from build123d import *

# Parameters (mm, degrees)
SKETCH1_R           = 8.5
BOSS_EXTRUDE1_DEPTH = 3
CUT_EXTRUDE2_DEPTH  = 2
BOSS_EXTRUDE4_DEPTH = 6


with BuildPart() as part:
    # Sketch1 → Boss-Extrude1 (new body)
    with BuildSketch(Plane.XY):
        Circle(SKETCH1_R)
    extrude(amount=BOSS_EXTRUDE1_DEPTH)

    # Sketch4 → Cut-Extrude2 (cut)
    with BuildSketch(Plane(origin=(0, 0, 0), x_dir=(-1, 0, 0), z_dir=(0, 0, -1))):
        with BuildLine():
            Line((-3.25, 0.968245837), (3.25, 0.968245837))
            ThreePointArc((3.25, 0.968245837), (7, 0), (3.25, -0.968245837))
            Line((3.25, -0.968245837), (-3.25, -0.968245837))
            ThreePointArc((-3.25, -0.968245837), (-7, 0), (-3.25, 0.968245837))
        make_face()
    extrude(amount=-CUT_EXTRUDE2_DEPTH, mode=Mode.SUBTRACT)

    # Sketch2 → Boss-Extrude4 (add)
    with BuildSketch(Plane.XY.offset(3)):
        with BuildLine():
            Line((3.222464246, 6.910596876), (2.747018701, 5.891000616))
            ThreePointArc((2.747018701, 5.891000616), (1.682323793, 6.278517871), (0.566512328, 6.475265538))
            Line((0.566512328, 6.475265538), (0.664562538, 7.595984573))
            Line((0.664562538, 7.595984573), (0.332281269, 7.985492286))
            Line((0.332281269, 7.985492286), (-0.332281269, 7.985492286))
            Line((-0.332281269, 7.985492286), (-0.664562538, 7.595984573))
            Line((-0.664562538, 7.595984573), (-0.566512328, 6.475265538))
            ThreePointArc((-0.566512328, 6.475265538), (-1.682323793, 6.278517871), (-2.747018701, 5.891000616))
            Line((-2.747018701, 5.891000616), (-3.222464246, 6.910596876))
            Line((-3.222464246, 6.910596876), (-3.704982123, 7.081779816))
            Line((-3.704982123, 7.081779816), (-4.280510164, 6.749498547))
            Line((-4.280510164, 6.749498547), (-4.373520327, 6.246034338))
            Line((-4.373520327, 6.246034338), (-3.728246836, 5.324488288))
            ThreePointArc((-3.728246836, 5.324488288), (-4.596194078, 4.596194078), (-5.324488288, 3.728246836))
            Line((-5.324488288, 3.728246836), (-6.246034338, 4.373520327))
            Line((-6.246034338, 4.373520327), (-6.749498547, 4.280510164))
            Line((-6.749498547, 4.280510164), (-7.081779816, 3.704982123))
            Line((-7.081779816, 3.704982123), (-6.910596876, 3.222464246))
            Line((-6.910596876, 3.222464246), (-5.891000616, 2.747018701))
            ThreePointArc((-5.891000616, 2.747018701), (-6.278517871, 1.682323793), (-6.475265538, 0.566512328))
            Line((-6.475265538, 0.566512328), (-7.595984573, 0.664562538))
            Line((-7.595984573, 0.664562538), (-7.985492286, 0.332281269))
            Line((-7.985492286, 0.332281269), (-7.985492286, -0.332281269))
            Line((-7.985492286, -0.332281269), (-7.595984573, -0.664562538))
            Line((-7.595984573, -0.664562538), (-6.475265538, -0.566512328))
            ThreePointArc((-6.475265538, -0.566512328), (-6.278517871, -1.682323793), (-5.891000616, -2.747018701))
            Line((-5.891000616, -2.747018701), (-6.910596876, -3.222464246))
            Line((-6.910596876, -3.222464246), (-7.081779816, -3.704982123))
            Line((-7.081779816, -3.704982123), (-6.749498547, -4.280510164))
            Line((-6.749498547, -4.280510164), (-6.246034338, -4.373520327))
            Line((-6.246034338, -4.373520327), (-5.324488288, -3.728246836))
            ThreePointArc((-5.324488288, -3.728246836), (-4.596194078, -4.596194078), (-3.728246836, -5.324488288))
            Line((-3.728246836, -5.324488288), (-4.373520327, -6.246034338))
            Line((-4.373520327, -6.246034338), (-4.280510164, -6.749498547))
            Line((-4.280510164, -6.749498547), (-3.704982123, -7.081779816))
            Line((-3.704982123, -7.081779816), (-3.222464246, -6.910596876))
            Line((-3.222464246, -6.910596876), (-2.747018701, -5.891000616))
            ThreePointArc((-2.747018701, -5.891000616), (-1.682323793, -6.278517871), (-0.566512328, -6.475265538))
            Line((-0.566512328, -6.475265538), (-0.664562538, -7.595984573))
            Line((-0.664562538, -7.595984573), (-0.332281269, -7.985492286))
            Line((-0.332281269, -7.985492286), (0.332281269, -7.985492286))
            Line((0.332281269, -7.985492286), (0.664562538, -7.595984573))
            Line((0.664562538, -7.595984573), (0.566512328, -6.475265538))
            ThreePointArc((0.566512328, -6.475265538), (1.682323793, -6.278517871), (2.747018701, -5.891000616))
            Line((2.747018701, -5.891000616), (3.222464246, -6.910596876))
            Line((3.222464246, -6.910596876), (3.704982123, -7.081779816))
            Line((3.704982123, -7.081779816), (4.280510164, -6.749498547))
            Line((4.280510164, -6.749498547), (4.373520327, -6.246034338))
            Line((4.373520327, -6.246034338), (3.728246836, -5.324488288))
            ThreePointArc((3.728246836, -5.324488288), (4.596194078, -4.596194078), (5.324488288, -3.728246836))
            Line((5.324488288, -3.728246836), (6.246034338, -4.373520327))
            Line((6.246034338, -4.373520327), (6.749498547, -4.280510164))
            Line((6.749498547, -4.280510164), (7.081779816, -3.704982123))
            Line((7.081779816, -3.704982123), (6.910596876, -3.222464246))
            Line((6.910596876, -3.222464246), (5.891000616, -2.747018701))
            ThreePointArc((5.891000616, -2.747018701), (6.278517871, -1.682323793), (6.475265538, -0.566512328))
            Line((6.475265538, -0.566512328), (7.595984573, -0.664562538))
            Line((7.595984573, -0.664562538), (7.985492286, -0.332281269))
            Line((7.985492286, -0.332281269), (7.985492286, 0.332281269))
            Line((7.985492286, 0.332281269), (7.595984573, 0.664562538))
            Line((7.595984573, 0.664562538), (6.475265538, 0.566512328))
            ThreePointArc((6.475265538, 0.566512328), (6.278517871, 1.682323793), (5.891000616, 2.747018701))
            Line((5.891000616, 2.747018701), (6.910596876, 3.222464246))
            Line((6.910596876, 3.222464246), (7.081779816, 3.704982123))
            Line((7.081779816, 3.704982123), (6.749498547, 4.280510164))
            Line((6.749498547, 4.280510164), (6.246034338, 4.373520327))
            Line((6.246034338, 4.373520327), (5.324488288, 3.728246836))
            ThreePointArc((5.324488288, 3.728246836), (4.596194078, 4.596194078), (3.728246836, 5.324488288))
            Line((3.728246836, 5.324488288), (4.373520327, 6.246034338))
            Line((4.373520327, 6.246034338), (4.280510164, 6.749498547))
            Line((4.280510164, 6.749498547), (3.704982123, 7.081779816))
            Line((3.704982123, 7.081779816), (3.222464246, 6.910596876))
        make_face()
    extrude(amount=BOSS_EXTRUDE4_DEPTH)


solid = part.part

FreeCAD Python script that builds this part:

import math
import FreeCAD as App
import Part
import Sketcher

V = App.Vector
Q = App.Units.Quantity

doc = App.newDocument("Part")
body = doc.addObject("PartDesign::Body", "Body")

sketch1 = body.newObject("Sketcher::SketchObject", "Sketch")
sketch1.AttachmentSupport = (doc.getObject("XY_Plane"), [""])
sketch1.MapMode = "FlatFace"
sketch1.addGeometry(Part.Circle(V(0, 0, 0), V(0, 0, 1), 8), False)
sketch1.addConstraint([
    Sketcher.Constraint("Coincident", 0, 3, -1, 1),
    Sketcher.Constraint("Diameter", 0, 17.0),
])
pad1 = body.newObject("PartDesign::Pad", "Pad")
pad1.Profile = sketch1
pad1.Length = 3

sketch2 = body.newObject("Sketcher::SketchObject", "Sketch001")
sketch2.AttachmentSupport = (doc.getObject("XY_Plane"), [""])
sketch2.MapMode = "FlatFace"
sketch2.addGeometry([
    Part.LineSegment(V(-3.2, 1, 0), V(3.2, 1, 0)),
    Part.ArcOfCircle(Part.Circle(V(5, 0, 0), V(0, 0, 1), 2), math.radians(-151), math.radians(151)),
    Part.LineSegment(V(3.2, -1, 0), V(-3.2, -1, 0)),
    Part.ArcOfCircle(Part.Circle(V(-5, 0, 0), V(0, 0, 1), 2), math.radians(29), math.radians(331)),
], False)
sketch2.addConstraint([
    Sketcher.Constraint("Coincident", 0, 2, 1, 2),
    Sketcher.Constraint("Coincident", 1, 1, 2, 1),
    Sketcher.Constraint("Coincident", 2, 2, 3, 2),
    Sketcher.Constraint("Coincident", 3, 1, 0, 1),
    Sketcher.Constraint("Horizontal", 0),
    Sketcher.Constraint("Horizontal", 2),
    Sketcher.Constraint("Equal", 1, 3),
    Sketcher.Constraint("Symmetric", 1, 3, 3, 3, -1, 1),
    Sketcher.Constraint("Symmetric", 0, 2, 1, 1, -1),
    Sketcher.Constraint("Radius", 1, 2.0),
    Sketcher.Constraint("DistanceX", 0, 1, 0, 2, 6.5),
    Sketcher.Constraint("DistanceX", -1, 1, 1, 3, 5.0),
])
pocket1 = body.newObject("PartDesign::Pocket", "Pocket")
pocket1.Profile = sketch2
pocket1.Length = 2
pocket1.Reversed = True

sketch3 = body.newObject("Sketcher::SketchObject", "Sketch002")
sketch3.AttachmentSupport = (doc.getObject("XY_Plane"), [""])
sketch3.MapMode = "FlatFace"
sketch3.AttachmentOffset = App.Placement(V(0, 0, 3), App.Rotation())
sketch3.addGeometry([
    Part.LineSegment(V(3.2, 6.9, 0), V(2.7, 5.9, 0)),
    Part.ArcOfCircle(Part.Circle(V(0, 0, 0), V(0, 0, 1), 6.5), math.radians(65), math.radians(85)),
    Part.LineSegment(V(0.6, 6.5, 0), V(0.7, 7.6, 0)),
    Part.LineSegment(V(0.7, 7.6, 0), V(0.3, 8, 0)),
    Part.LineSegment(V(0.3, 8, 0), V(-0.3, 8, 0)),
    Part.LineSegment(V(-0.3, 8, 0), V(-0.7, 7.6, 0)),
    Part.LineSegment(V(-0.7, 7.6, 0), V(-0.6, 6.5, 0)),
    Part.ArcOfCircle(Part.Circle(V(0, 0, 0), V(0, 0, 1), 6.5), math.radians(95), math.radians(115)),
    Part.LineSegment(V(-2.7, 5.9, 0), V(-3.2, 6.9, 0)),
    Part.LineSegment(V(-3.2, 6.9, 0), V(-3.7, 7.1, 0)),
    Part.LineSegment(V(-3.7, 7.1, 0), V(-4.3, 6.7, 0)),
    Part.LineSegment(V(-4.3, 6.7, 0), V(-4.4, 6.2, 0)),
    Part.LineSegment(V(-4.4, 6.2, 0), V(-3.7, 5.3, 0)),
    Part.ArcOfCircle(Part.Circle(V(0, 0, 0), V(0, 0, 1), 6.5), math.radians(125), math.radians(145)),
    Part.LineSegment(V(-5.3, 3.7, 0), V(-6.2, 4.4, 0)),
    Part.LineSegment(V(-6.2, 4.4, 0), V(-6.7, 4.3, 0)),
    Part.LineSegment(V(-6.7, 4.3, 0), V(-7.1, 3.7, 0)),
    Part.LineSegment(V(-7.1, 3.7, 0), V(-6.9, 3.2, 0)),
    Part.LineSegment(V(-6.9, 3.2, 0), V(-5.9, 2.7, 0)),
    Part.ArcOfCircle(Part.Circle(V(0, 0, 0), V(0, 0, 1), 6.5), math.radians(155), math.radians(175)),
    Part.LineSegment(V(-6.5, 0.6, 0), V(-7.6, 0.7, 0)),
    Part.LineSegment(V(-7.6, 0.7, 0), V(-8, 0.3, 0)),
    Part.LineSegment(V(-8, 0.3, 0), V(-8, -0.3, 0)),
    Part.LineSegment(V(-8, -0.3, 0), V(-7.6, -0.7, 0)),
    Part.LineSegment(V(-7.6, -0.7, 0), V(-6.5, -0.6, 0)),
    Part.ArcOfCircle(Part.Circle(V(0, 0, 0), V(0, 0, 1), 6.5), math.radians(-175), math.radians(-155)),
    Part.LineSegment(V(-5.9, -2.7, 0), V(-6.9, -3.2, 0)),
    Part.LineSegment(V(-6.9, -3.2, 0), V(-7.1, -3.7, 0)),
    Part.LineSegment(V(-7.1, -3.7, 0), V(-6.7, -4.3, 0)),
    Part.LineSegment(V(-6.7, -4.3, 0), V(-6.2, -4.4, 0)),
    Part.LineSegment(V(-6.2, -4.4, 0), V(-5.3, -3.7, 0)),
    Part.ArcOfCircle(Part.Circle(V(0, 0, 0), V(0, 0, 1), 6.5), math.radians(-145), math.radians(-125)),
    Part.LineSegment(V(-3.7, -5.3, 0), V(-4.4, -6.2, 0)),
    Part.LineSegment(V(-4.4, -6.2, 0), V(-4.3, -6.7, 0)),
    Part.LineSegment(V(-4.3, -6.7, 0), V(-3.7, -7.1, 0)),
    Part.LineSegment(V(-3.7, -7.1, 0), V(-3.2, -6.9, 0)),
    Part.LineSegment(V(-3.2, -6.9, 0), V(-2.7, -5.9, 0)),
    Part.ArcOfCircle(Part.Circle(V(0, 0, 0), V(0, 0, 1), 6.5), math.radians(-115), math.radians(-95)),
    Part.LineSegment(V(-0.6, -6.5, 0), V(-0.7, -7.6, 0)),
    Part.LineSegment(V(-0.7, -7.6, 0), V(-0.3, -8, 0)),
    Part.LineSegment(V(-0.3, -8, 0), V(0.3, -8, 0)),
    Part.LineSegment(V(0.3, -8, 0), V(0.7, -7.6, 0)),
    Part.LineSegment(V(0.7, -7.6, 0), V(0.6, -6.5, 0)),
    Part.ArcOfCircle(Part.Circle(V(0, 0, 0), V(0, 0, 1), 6.5), math.radians(-85), math.radians(-65)),
    Part.LineSegment(V(2.7, -5.9, 0), V(3.2, -6.9, 0)),
    Part.LineSegment(V(3.2, -6.9, 0), V(3.7, -7.1, 0)),
    Part.LineSegment(V(3.7, -7.1, 0), V(4.3, -6.7, 0)),
    Part.LineSegment(V(4.3, -6.7, 0), V(4.4, -6.2, 0)),
    Part.LineSegment(V(4.4, -6.2, 0), V(3.7, -5.3, 0)),
    Part.ArcOfCircle(Part.Circle(V(0, 0, 0), V(0, 0, 1), 6.5), math.radians(-55), math.radians(-35)),
    Part.LineSegment(V(5.3, -3.7, 0), V(6.2, -4.4, 0)),
    Part.LineSegment(V(6.2, -4.4, 0), V(6.7, -4.3, 0)),
    Part.LineSegment(V(6.7, -4.3, 0), V(7.1, -3.7, 0)),
    Part.LineSegment(V(7.1, -3.7, 0), V(6.9, -3.2, 0)),
    Part.LineSegment(V(6.9, -3.2, 0), V(5.9, -2.7, 0)),
    Part.ArcOfCircle(Part.Circle(V(0, 0, 0), V(0, 0, 1), 6.5), math.radians(-25), math.radians(-5)),
    Part.LineSegment(V(6.5, -0.6, 0), V(7.6, -0.7, 0)),
    Part.LineSegment(V(7.6, -0.7, 0), V(8, -0.3, 0)),
    Part.LineSegment(V(8, -0.3, 0), V(8, 0.3, 0)),
    Part.LineSegment(V(8, 0.3, 0), V(7.6, 0.7, 0)),
    Part.LineSegment(V(7.6, 0.7, 0), V(6.5, 0.6, 0)),
    Part.ArcOfCircle(Part.Circle(V(0, 0, 0), V(0, 0, 1), 6.5), math.radians(5), math.radians(25)),
    Part.LineSegment(V(5.9, 2.7, 0), V(6.9, 3.2, 0)),
    Part.LineSegment(V(6.9, 3.2, 0), V(7.1, 3.7, 0)),
    Part.LineSegment(V(7.1, 3.7, 0), V(6.7, 4.3, 0)),
    Part.LineSegment(V(6.7, 4.3, 0), V(6.2, 4.4, 0)),
    Part.LineSegment(V(6.2, 4.4, 0), V(5.3, 3.7, 0)),
    Part.ArcOfCircle(Part.Circle(V(0, 0, 0), V(0, 0, 1), 6.5), math.radians(35), math.radians(55)),
    Part.LineSegment(V(3.7, 5.3, 0), V(4.4, 6.2, 0)),
    Part.LineSegment(V(4.4, 6.2, 0), V(4.3, 6.7, 0)),
    Part.LineSegment(V(4.3, 6.7, 0), V(3.7, 7.1, 0)),
    Part.LineSegment(V(3.7, 7.1, 0), V(3.2, 6.9, 0)),
], False)
sketch3.addConstraint([
    Sketcher.Constraint("Coincident", 0, 2, 1, 1),
    Sketcher.Constraint("Coincident", 1, 2, 2, 1),
    Sketcher.Constraint("Coincident", 2, 2, 3, 1),
    Sketcher.Constraint("Coincident", 3, 2, 4, 1),
    Sketcher.Constraint("Coincident", 4, 2, 5, 1),
    Sketcher.Constraint("Coincident", 5, 2, 6, 1),
    Sketcher.Constraint("Coincident", 6, 2, 7, 1),
    Sketcher.Constraint("Coincident", 7, 2, 8, 1),
    Sketcher.Constraint("Coincident", 8, 2, 9, 1),
    Sketcher.Constraint("Coincident", 9, 2, 10, 1),
    Sketcher.Constraint("Coincident", 10, 2, 11, 1),
    Sketcher.Constraint("Coincident", 11, 2, 12, 1),
    Sketcher.Constraint("Coincident", 12, 2, 13, 1),
    Sketcher.Constraint("Coincident", 13, 2, 14, 1),
    Sketcher.Constraint("Coincident", 14, 2, 15, 1),
    Sketcher.Constraint("Coincident", 15, 2, 16, 1),
    Sketcher.Constraint("Coincident", 16, 2, 17, 1),
    Sketcher.Constraint("Coincident", 17, 2, 18, 1),
    Sketcher.Constraint("Coincident", 18, 2, 19, 1),
    Sketcher.Constraint("Coincident", 19, 2, 20, 1),
    Sketcher.Constraint("Coincident", 20, 2, 21, 1),
    Sketcher.Constraint("Coincident", 21, 2, 22, 1),
    Sketcher.Constraint("Coincident", 22, 2, 23, 1),
    Sketcher.Constraint("Coincident", 23, 2, 24, 1),
    Sketcher.Constraint("Coincident", 24, 2, 25, 1),
    Sketcher.Constraint("Coincident", 25, 2, 26, 1),
    Sketcher.Constraint("Coincident", 26, 2, 27, 1),
    Sketcher.Constraint("Coincident", 27, 2, 28, 1),
    Sketcher.Constraint("Coincident", 28, 2, 29, 1),
    Sketcher.Constraint("Coincident", 29, 2, 30, 1),
    Sketcher.Constraint("Coincident", 30, 2, 31, 1),
    Sketcher.Constraint("Coincident", 31, 2, 32, 1),
    Sketcher.Constraint("Coincident", 32, 2, 33, 1),
    Sketcher.Constraint("Coincident", 33, 2, 34, 1),
    Sketcher.Constraint("Coincident", 34, 2, 35, 1),
    Sketcher.Constraint("Coincident", 35, 2, 36, 1),
    Sketcher.Constraint("Coincident", 36, 2, 37, 1),
    Sketcher.Constraint("Coincident", 37, 2, 38, 1),
    Sketcher.Constraint("Coincident", 38, 2, 39, 1),
    Sketcher.Constraint("Coincident", 39, 2, 40, 1),
    Sketcher.Constraint("Coincident", 40, 2, 41, 1),
    Sketcher.Constraint("Coincident", 41, 2, 42, 1),
    Sketcher.Constraint("Coincident", 42, 2, 43, 1),
    Sketcher.Constraint("Coincident", 43, 2, 44, 1),
    Sketcher.Constraint("Coincident", 44, 2, 45, 1),
    Sketcher.Constraint("Coincident", 45, 2, 46, 1),
    Sketcher.Constraint("Coincident", 46, 2, 47, 1),
    Sketcher.Constraint("Coincident", 47, 2, 48, 1),
    Sketcher.Constraint("Coincident", 48, 2, 49, 1),
    Sketcher.Constraint("Coincident", 49, 2, 50, 1),
    Sketcher.Constraint("Coincident", 50, 2, 51, 1),
    Sketcher.Constraint("Coincident", 51, 2, 52, 1),
    Sketcher.Constraint("Coincident", 52, 2, 53, 1),
    Sketcher.Constraint("Coincident", 53, 2, 54, 1),
    Sketcher.Constraint("Coincident", 54, 2, 55, 1),
    Sketcher.Constraint("Coincident", 55, 2, 56, 1),
    Sketcher.Constraint("Coincident", 56, 2, 57, 1),
    Sketcher.Constraint("Coincident", 57, 2, 58, 1),
    Sketcher.Constraint("Coincident", 58, 2, 59, 1),
    Sketcher.Constraint("Coincident", 59, 2, 60, 1),
    Sketcher.Constraint("Coincident", 60, 2, 61, 1),
    Sketcher.Constraint("Coincident", 61, 2, 62, 1),
    Sketcher.Constraint("Coincident", 62, 2, 63, 1),
    Sketcher.Constraint("Coincident", 63, 2, 64, 1),
    Sketcher.Constraint("Coincident", 64, 2, 65, 1),
    Sketcher.Constraint("Coincident", 65, 2, 66, 1),
    Sketcher.Constraint("Coincident", 66, 2, 67, 1),
    Sketcher.Constraint("Coincident", 67, 2, 68, 1),
    Sketcher.Constraint("Coincident", 68, 2, 69, 1),
    Sketcher.Constraint("Coincident", 69, 2, 70, 1),
    Sketcher.Constraint("Coincident", 70, 2, 71, 1),
    Sketcher.Constraint("Coincident", 71, 2, 0, 1),
    Sketcher.Constraint("Horizontal", 4),
    Sketcher.Constraint("Vertical", 22),
    Sketcher.Constraint("Horizontal", 40),
    Sketcher.Constraint("Vertical", 58),
    Sketcher.Constraint("Coincident", 1, 3, -1, 1),
    Sketcher.Constraint("Coincident", 7, 3, -1, 1),
    Sketcher.Constraint("Coincident", 13, 3, -1, 1),
    Sketcher.Constraint("Coincident", 19, 3, -1, 1),
    Sketcher.Constraint("Coincident", 25, 3, -1, 1),
    Sketcher.Constraint("Coincident", 31, 3, -1, 1),
    Sketcher.Constraint("Coincident", 37, 3, -1, 1),
    Sketcher.Constraint("Coincident", 43, 3, -1, 1),
    Sketcher.Constraint("Coincident", 49, 3, -1, 1),
    Sketcher.Constraint("Coincident", 55, 3, -1, 1),
    Sketcher.Constraint("Coincident", 61, 3, -1, 1),
    Sketcher.Constraint("Coincident", 67, 3, -1, 1),
    Sketcher.Constraint("Equal", 1, 7),
    Sketcher.Constraint("Equal", 7, 13),
    Sketcher.Constraint("Equal", 13, 19),
    Sketcher.Constraint("Equal", 19, 25),
    Sketcher.Constraint("Equal", 25, 31),
    Sketcher.Constraint("Equal", 31, 37),
    Sketcher.Constraint("Equal", 37, 43),
    Sketcher.Constraint("Equal", 43, 49),
    Sketcher.Constraint("Equal", 49, 55),
    Sketcher.Constraint("Equal", 55, 61),
    Sketcher.Constraint("Equal", 61, 67),
    Sketcher.Constraint("Symmetric", 2, 2, 38, 2, -1, 1),
    Sketcher.Constraint("Symmetric", 3, 2, 39, 2, -1, 1),
    Sketcher.Constraint("Symmetric", 5, 2, 41, 2, -1, 1),
    Sketcher.Constraint("Symmetric", 8, 2, 44, 2, -1, 1),
    Sketcher.Constraint("Symmetric", 9, 2, 45, 2, -1, 1),
    Sketcher.Constraint("Symmetric", 10, 2, 46, 2, -1, 1),
    Sketcher.Constraint("Symmetric", 11, 2, 47, 2, -1, 1),
    Sketcher.Constraint("Symmetric", 14, 2, 50, 2, -1, 1),
    Sketcher.Constraint("Symmetric", 15, 2, 51, 2, -1, 1),
    Sketcher.Constraint("Symmetric", 16, 2, 52, 2, -1, 1),
    Sketcher.Constraint("Symmetric", 17, 2, 53, 2, -1, 1),
    Sketcher.Constraint("Symmetric", 20, 2, 56, 2, -1, 1),
    Sketcher.Constraint("Symmetric", 21, 2, 57, 2, -1, 1),
    Sketcher.Constraint("Symmetric", 23, 2, 59, 2, -1, 1),
    Sketcher.Constraint("Symmetric", 26, 2, 62, 2, -1, 1),
    Sketcher.Constraint("Symmetric", 27, 2, 63, 2, -1, 1),
    Sketcher.Constraint("Symmetric", 28, 2, 64, 2, -1, 1),
    Sketcher.Constraint("Symmetric", 29, 2, 65, 2, -1, 1),
    Sketcher.Constraint("Symmetric", 32, 2, 68, 2, -1, 1),
    Sketcher.Constraint("Symmetric", 33, 2, 69, 2, -1, 1),
    Sketcher.Constraint("Symmetric", 34, 2, 70, 2, -1, 1),
    Sketcher.Constraint("Symmetric", 35, 2, 71, 2, -1, 1),
    Sketcher.Constraint("Symmetric", 2, 2, 5, 2, -2),
    Sketcher.Constraint("Symmetric", 35, 2, 44, 2, -2),
    Sketcher.Constraint("Symmetric", 34, 2, 45, 2, -2),
    Sketcher.Constraint("Symmetric", 33, 2, 46, 2, -2),
    Sketcher.Constraint("Symmetric", 32, 2, 47, 2, -2),
    Sketcher.Constraint("Symmetric", 29, 2, 50, 2, -2),
    Sketcher.Constraint("Symmetric", 28, 2, 51, 2, -2),
    Sketcher.Constraint("Symmetric", 27, 2, 52, 2, -2),
    Sketcher.Constraint("Symmetric", 26, 2, 53, 2, -2),
    Sketcher.Constraint("Symmetric", 23, 2, 56, 2, -2),
    Sketcher.Constraint("Perpendicular", 0, 18),
    Sketcher.Constraint("Perpendicular", 2, 20),
    Sketcher.Constraint("Perpendicular", 3, 21),
    Sketcher.Constraint("Perpendicular", 5, 23),
    Sketcher.Constraint("Perpendicular", 6, 24),
    Sketcher.Constraint("Perpendicular", 8, 26),
    Sketcher.Constraint("Perpendicular", 9, 27),
    Sketcher.Constraint("Perpendicular", 10, 28),
    Sketcher.Constraint("Perpendicular", 11, 29),
    Sketcher.Constraint("Perpendicular", 12, 30),
    Sketcher.Constraint("Perpendicular", 14, 32),
    Sketcher.Constraint("Perpendicular", 18, 36),
    Sketcher.Constraint("Perpendicular", 20, 38),
    Sketcher.Constraint("Perpendicular", 23, 41),
    Sketcher.Constraint("Perpendicular", 24, 42),
    Sketcher.Constraint("Perpendicular", 26, 44),
    Sketcher.Constraint("Perpendicular", 30, 48),
    Sketcher.Constraint("Perpendicular", 32, 50),
    Sketcher.Constraint("Perpendicular", 36, 54),
    Sketcher.Constraint("Perpendicular", 38, 56),
    Sketcher.Constraint("Perpendicular", 41, 59),
    Sketcher.Constraint("Perpendicular", 42, 60),
    Sketcher.Constraint("Perpendicular", 44, 62),
    Sketcher.Constraint("Perpendicular", 48, 66),
    Sketcher.Constraint("Perpendicular", 50, 68),
    Sketcher.Constraint("Horizontal", 1, 2, 6, 2),
    Sketcher.Constraint("Horizontal", 0, 2, 7, 2),
    Sketcher.Constraint("Horizontal", 31, 2, 48, 2),
    Sketcher.Constraint("Horizontal", 22, 2, 57, 2),
    Sketcher.Constraint("Equal", 40, 22),
    Sketcher.Constraint("Equal", 0, 2),
    Sketcher.Constraint("Equal", 5, 9),
    Sketcher.Constraint("Equal", 9, 11),
    Sketcher.Constraint("Equal", 8, 12),
    Sketcher.Constraint("Equal", 12, 14),
    Sketcher.Constraint("Equal", 11, 15),
    Sketcher.Constraint("Equal", 10, 16),
    Sketcher.Constraint("Equal", 15, 17),
    Sketcher.Constraint("Equal", 14, 18),
    Sketcher.Constraint("Equal", 18, 20),
    Sketcher.Constraint("Equal", 17, 21),
    Sketcher.Constraint("Radius", 1, 6.5),
    Sketcher.Constraint("Angle", 0, Q("-115 deg")),
    Sketcher.Constraint("Angle", 2, Q("85 deg")),
    Sketcher.Constraint("Angle", 10, Q("-150 deg")),
    Sketcher.Constraint("Angle", 12, Q("-55 deg")),
    Sketcher.Constraint("Distance", 0, 1.125),
    Sketcher.Constraint("DistanceY", -1, 1, 0, 2, 5.891001),
    Sketcher.Constraint("DistanceY", -1, 1, 10, 2, 6.749499),
    Sketcher.Constraint("DistanceX", 4, 2, 4, 1, 0.664563),
    Sketcher.Constraint("DistanceY", -1, 1, 9, 2, 7.08178),
    Sketcher.Constraint("DistanceX", 10, 2, -1, 1, 4.28051),
    Sketcher.Constraint("DistanceX", -1, 1, 1, 2, 0.566512),
])
pad2 = body.newObject("PartDesign::Pad", "Pad001")
pad2.Profile = sketch3
pad2.Length = 6

doc.recompute()
